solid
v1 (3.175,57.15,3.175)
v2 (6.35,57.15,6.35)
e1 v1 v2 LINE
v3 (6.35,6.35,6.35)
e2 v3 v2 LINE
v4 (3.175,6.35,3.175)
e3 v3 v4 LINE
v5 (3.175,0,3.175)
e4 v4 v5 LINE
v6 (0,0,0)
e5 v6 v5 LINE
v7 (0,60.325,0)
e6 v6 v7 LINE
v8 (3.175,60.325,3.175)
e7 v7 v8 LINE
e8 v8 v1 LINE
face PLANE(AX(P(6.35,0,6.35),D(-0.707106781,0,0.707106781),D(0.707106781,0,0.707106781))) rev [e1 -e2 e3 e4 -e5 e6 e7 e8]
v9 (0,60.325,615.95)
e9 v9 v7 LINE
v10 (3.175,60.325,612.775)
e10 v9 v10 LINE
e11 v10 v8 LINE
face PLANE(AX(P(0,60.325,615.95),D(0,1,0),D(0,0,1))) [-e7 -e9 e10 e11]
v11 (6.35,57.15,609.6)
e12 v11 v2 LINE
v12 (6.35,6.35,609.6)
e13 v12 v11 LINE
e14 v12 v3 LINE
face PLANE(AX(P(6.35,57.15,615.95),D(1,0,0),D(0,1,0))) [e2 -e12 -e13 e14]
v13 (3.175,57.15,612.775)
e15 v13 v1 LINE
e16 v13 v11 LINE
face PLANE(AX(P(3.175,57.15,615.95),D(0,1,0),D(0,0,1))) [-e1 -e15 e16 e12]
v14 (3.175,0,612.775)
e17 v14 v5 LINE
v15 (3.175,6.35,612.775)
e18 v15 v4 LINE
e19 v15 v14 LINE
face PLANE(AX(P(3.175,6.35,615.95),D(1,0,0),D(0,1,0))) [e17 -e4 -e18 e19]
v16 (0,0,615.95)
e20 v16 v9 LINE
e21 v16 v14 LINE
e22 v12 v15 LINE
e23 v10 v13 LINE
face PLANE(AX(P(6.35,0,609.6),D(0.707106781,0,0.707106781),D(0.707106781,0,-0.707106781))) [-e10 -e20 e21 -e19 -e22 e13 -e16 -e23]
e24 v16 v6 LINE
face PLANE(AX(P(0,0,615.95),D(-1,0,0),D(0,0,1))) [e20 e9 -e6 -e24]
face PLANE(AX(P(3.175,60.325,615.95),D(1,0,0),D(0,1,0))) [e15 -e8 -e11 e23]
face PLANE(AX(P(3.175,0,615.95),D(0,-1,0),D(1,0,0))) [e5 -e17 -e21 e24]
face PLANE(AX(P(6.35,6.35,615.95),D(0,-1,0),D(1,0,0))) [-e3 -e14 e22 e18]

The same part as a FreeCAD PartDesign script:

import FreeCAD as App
import Part
import Sketcher
from FreeCAD import Vector
Q = App.Units.Quantity


def add_polygon(sketch, points):
    """Adds a closed chain of lines whose ends are joined by coincident constraints."""
    first, n = sketch.GeometryCount, len(points)
    for a, b in zip(points, points[1:] + points[:1]):
        sketch.addGeometry(Part.LineSegment(App.Vector(*a, 0), App.Vector(*b, 0)), False)
    for i in range(n):
        sketch.addConstraint(Sketcher.Constraint("Coincident", first + i, 2, first + (i + 1) % n, 1))

doc = App.newDocument("Part")
body = doc.addObject("PartDesign::Body", "Body")

sketch1 = doc.addObject("Sketcher::SketchObject", "Sketch")
body.addObject(sketch1)
sketch1.AttachmentSupport = (doc.XY_Plane, [""])
sketch1.MapMode = "FlatFace"
add_polygon(sketch1, [(0, 60.3), (0, 0), (3.2, 0), (3.2, 6.3), (6.3, 6.3), (6.3, 57.1), (3.2, 57.1), (3.2, 60.3)])
sketch1.addConstraint([
    Sketcher.Constraint("Vertical", 0),
    Sketcher.Constraint("Horizontal", 1),
    Sketcher.Constraint("Vertical", 2),
    Sketcher.Constraint("Horizontal", 3),
    Sketcher.Constraint("Vertical", 4),
    Sketcher.Constraint("Horizontal", 5),
    Sketcher.Constraint("Vertical", 6),
    Sketcher.Constraint("Horizontal", 7),
    Sketcher.Constraint("Coincident", 0, 2, -1, 1),
    Sketcher.Constraint("Vertical", 2, 2, 5, 2),
    Sketcher.Constraint("Equal", 1, 3),
    Sketcher.Constraint("Equal", 7, 6),
    Sketcher.Constraint("DistanceY", 4, 1, 4, 2, Q("2 in")),
    Sketcher.Constraint("DistanceY", 2, 1, 2, 2, Q("0.25 in")),
    Sketcher.Constraint("DistanceX", 1, 1, 1, 2, Q("0.125 in")),
])
pad1 = doc.addObject("PartDesign::Pad", "Pad")
body.addObject(pad1)
pad1.Profile = sketch1
pad1.Length = Q("24.25 in")

sketch2 = doc.addObject("Sketcher::SketchObject", "Sketch001")
body.addObject(sketch2)
sketch2.AttachmentSupport = (doc.XZ_Plane, [""])
sketch2.MapMode = "FlatFace"
sketch2.AttachmentOffset = App.Placement(Vector(0, 0, -2.375 * 25.4), App.Rotation())
add_polygon(sketch2, [(6, 0), (0, 0), (6, 6)])
sketch2.addConstraint([
    Sketcher.Constraint("Horizontal", 0),
    Sketcher.Constraint("Vertical", 2),
    Sketcher.Constraint("Coincident", 0, 2, -1, 1),
    Sketcher.Constraint("Equal", 0, 2),
    Sketcher.Constraint("DistanceX", 0, 2, 0, 1, Q("0.25 in")),
])
pocket1 = doc.addObject("PartDesign::Pocket", "Pocket")
body.addObject(pocket1)
pocket1.Profile = sketch2
pocket1.Type = "ThroughAll"
pocket1.Reversed = True
doc.recompute()

datumplane = doc.addObject("PartDesign::Plane", "DatumPlane")
body.addObject(datumplane)
datumplane.AttachmentSupport = (doc.XY_Plane, [""])
datumplane.MapMode = "FlatFace"
datumplane.AttachmentOffset = App.Placement(Vector(0, 0, 12.125 * 25.4), App.Rotation())
mirrored = doc.addObject("PartDesign::Mirrored", "Mirrored")
body.addObject(mirrored)
mirrored.Originals = [pocket1]
mirrored.MirrorPlane = (datumplane, [""])
body.Tip = mirrored

doc.recompute()
